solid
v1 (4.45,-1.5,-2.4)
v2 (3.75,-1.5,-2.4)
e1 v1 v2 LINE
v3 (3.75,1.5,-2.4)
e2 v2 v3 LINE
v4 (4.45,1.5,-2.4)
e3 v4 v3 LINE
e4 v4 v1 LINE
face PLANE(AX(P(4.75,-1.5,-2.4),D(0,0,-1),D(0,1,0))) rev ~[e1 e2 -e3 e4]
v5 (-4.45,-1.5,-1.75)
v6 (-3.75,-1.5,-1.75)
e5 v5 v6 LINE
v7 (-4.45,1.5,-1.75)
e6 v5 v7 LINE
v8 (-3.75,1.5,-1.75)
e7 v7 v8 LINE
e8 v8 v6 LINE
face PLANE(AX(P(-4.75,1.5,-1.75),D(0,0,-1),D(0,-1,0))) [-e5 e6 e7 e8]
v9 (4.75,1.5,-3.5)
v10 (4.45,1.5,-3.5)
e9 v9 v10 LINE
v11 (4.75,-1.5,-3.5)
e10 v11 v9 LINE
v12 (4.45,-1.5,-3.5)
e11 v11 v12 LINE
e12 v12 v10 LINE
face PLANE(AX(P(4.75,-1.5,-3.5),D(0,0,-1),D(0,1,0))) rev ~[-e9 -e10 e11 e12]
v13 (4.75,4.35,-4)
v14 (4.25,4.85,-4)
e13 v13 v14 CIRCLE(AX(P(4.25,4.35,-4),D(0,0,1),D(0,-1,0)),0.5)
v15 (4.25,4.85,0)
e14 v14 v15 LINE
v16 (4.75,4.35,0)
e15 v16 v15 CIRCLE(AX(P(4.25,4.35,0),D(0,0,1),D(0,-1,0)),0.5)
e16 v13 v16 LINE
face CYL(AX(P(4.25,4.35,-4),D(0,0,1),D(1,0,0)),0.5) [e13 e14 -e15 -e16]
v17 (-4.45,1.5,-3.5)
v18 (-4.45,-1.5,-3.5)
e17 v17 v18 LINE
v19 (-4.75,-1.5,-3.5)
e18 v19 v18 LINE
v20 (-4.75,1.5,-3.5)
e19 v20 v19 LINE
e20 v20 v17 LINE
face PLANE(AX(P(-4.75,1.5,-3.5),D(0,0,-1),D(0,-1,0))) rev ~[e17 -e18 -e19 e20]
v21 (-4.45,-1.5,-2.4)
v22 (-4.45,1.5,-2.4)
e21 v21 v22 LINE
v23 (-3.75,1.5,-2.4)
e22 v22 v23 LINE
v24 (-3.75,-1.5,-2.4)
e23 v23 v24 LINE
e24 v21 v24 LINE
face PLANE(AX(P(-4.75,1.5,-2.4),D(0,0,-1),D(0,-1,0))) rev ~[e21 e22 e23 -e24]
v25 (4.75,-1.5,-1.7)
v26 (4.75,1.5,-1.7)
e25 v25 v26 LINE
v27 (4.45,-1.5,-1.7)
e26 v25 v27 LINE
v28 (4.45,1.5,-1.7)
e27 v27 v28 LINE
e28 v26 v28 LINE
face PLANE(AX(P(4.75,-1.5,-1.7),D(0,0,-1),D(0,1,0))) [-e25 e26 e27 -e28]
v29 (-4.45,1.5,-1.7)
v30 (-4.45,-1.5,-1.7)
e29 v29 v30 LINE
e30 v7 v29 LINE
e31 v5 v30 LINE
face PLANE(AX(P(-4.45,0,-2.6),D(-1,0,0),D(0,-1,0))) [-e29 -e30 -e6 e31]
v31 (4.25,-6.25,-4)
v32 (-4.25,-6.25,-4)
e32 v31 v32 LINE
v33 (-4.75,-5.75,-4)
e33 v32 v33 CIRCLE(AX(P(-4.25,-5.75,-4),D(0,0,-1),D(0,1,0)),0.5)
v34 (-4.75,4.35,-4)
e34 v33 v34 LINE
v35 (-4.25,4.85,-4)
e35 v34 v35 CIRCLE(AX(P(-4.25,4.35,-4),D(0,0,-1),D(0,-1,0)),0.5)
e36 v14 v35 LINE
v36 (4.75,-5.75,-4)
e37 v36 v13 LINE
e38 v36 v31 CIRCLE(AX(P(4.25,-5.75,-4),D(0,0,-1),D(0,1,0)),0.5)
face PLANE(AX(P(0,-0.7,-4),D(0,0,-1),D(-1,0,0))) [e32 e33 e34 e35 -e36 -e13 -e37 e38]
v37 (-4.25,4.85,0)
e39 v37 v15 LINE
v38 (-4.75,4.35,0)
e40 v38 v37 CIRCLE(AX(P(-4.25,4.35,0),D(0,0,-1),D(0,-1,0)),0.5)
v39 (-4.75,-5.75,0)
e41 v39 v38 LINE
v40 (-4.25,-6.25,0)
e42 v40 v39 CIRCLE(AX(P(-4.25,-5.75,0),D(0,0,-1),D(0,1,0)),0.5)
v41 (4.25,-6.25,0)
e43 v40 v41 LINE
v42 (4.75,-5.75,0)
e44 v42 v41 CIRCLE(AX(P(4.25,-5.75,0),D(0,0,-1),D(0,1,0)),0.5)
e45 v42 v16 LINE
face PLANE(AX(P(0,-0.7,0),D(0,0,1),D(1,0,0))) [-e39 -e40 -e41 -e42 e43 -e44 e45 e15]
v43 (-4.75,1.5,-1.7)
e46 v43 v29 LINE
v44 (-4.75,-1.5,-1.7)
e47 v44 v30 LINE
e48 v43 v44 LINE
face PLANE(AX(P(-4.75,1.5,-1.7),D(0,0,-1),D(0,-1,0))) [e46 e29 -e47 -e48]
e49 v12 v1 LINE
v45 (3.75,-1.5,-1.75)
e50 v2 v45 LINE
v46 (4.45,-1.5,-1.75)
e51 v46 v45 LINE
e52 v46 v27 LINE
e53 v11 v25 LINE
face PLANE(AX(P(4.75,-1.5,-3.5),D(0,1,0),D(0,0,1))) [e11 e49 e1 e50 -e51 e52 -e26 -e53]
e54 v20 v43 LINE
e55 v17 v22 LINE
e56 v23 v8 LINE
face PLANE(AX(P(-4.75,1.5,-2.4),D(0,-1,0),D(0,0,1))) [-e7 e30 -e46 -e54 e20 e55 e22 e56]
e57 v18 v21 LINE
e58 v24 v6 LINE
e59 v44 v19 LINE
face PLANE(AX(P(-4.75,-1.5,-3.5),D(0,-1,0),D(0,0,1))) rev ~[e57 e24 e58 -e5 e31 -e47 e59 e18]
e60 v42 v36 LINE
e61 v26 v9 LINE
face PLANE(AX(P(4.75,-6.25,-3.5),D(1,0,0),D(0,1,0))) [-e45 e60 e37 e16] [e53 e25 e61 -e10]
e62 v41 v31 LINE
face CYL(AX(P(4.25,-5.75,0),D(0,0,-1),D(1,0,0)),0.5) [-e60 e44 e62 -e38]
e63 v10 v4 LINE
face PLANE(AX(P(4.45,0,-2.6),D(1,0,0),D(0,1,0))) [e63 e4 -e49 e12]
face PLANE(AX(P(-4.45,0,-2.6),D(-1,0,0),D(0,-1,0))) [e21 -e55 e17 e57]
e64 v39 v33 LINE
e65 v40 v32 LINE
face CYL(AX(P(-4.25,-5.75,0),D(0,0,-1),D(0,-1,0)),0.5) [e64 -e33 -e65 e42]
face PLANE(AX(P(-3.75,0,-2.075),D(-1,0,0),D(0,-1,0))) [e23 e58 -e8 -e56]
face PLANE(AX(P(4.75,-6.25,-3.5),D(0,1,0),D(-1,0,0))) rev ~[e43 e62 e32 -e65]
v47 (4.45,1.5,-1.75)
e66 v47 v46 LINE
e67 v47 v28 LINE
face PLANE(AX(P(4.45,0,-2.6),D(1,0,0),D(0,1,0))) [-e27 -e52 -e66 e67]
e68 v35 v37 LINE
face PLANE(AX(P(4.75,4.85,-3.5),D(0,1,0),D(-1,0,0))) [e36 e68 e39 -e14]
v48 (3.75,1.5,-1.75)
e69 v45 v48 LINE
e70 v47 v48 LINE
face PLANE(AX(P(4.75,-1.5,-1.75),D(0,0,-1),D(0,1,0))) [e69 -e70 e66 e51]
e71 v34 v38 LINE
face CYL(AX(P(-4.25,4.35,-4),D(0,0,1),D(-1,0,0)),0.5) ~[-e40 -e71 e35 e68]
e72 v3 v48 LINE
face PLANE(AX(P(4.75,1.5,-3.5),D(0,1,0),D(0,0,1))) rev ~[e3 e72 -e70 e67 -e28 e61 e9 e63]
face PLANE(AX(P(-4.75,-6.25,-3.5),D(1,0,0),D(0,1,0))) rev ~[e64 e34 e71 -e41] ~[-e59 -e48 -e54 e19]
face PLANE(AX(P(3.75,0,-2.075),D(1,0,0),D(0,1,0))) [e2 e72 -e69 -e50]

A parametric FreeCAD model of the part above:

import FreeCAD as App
import Part
import Sketcher
from FreeCAD import Vector
Q = App.Units.Quantity


def edges_at(feature, points):
    """Names of the edges that pass closest to the given points."""
    edges = feature.Shape.Edges
    near = lambda p: min(range(len(edges)), key=lambda i: edges[i].distToShape(Part.Vertex(*p))[0])
    return sorted({f"Edge{near(p) + 1}" for p in points})

doc = App.newDocument("Part")
body = doc.addObject("PartDesign::Body", "Body")

# Sketch on XY plane
sketch1 = body.newObject("Sketcher::SketchObject", "Sketch")
sketch1.AttachmentSupport = (doc.getObject("XY_Plane"), [""])
sketch1.MapMode = "FlatFace"
sketch1.addGeometry([
    Part.LineSegment(Vector(-5, 5, 0), Vector(-5, -6, 0)),
    Part.LineSegment(Vector(-5, -6, 0), Vector(5, -6, 0)),
    Part.LineSegment(Vector(5, -6, 0), Vector(5, 5, 0)),
    Part.LineSegment(Vector(5, 5, 0), Vector(-5, 5, 0)),
], False)
sketch1.addConstraint([
    Sketcher.Constraint("Coincident", 0, 2, 1, 1),
    Sketcher.Constraint("Coincident", 1, 2, 2, 1),
    Sketcher.Constraint("Coincident", 2, 2, 3, 1),
    Sketcher.Constraint("Coincident", 3, 2, 0, 1),
    Sketcher.Constraint("Vertical", 0),
    Sketcher.Constraint("Horizontal", 1),
    Sketcher.Constraint("Vertical", 2),
    Sketcher.Constraint("Horizontal", 3),
    Sketcher.Constraint("DistanceX", 1, 1, 1, 2, Q("9.5 mm")),
    Sketcher.Constraint("DistanceY", 0, 2, 0, 1, Q("11.1 mm")),
    Sketcher.Constraint("DistanceX", 0, 2, -1, 1, Q("4.75 mm")),
    Sketcher.Constraint("DistanceY", 0, 2, -1, 1, Q("6.25 mm")),
])
pad1 = body.newObject("PartDesign::Pad", "Pad")
pad1.Profile = sketch1
pad1.Length = 3.5
pad1.Reversed = True

# Sketch on YZ plane
sketch2 = body.newObject("Sketcher::SketchObject", "Sketch001")
sketch2.AttachmentSupport = (doc.getObject("YZ_Plane"), [""])
sketch2.MapMode = "FlatFace"
sketch2.AttachmentOffset = App.Placement(Vector(0, 0, 4.75), App.Rotation())
sketch2.addGeometry([
    Part.LineSegment(Vector(-1.5, -1.8, 0), Vector(-1.5, -2.4, 0)),
    Part.LineSegment(Vector(-1.5, -2.4, 0), Vector(1.5, -2.4, 0)),
    Part.LineSegment(Vector(1.5, -2.4, 0), Vector(1.5, -1.8, 0)),
    Part.LineSegment(Vector(1.5, -1.8, 0), Vector(-1.5, -1.8, 0)),
], False)
sketch2.addConstraint([
    Sketcher.Constraint("Coincident", 0, 2, 1, 1),
    Sketcher.Constraint("Coincident", 1, 2, 2, 1),
    Sketcher.Constraint("Coincident", 2, 2, 3, 1),
    Sketcher.Constraint("Coincident", 3, 2, 0, 1),
    Sketcher.Constraint("Vertical", 0),
    Sketcher.Constraint("Horizontal", 1),
    Sketcher.Constraint("Vertical", 2),
    Sketcher.Constraint("Horizontal", 3),
    Sketcher.Constraint("DistanceX", 1, 1, 1, 2, Q("3 mm")),
    Sketcher.Constraint("DistanceY", 0, 2, 0, 1, Q("0.65 mm")),
    Sketcher.Constraint("DistanceX", 0, 2, -1, 1, Q("1.5 mm")),
    Sketcher.Constraint("DistanceY", 0, 2, -1, 1, Q("2.4 mm")),
])
pocket1 = body.newObject("PartDesign::Pocket", "Pocket")
pocket1.Profile = sketch2
pocket1.Length = 1

# Sketch on XY plane
sketch3 = body.newObject("Sketcher::SketchObject", "Sketch002")
sketch3.AttachmentSupport = (doc.getObject("XY_Plane"), [""])
sketch3.MapMode = "FlatFace"
sketch3.AttachmentOffset = App.Placement(Vector(0, 0, -3.5), App.Rotation())
sketch3.addGeometry([
    Part.LineSegment(Vector(5, 5, 0), Vector(5, -6, 0)),
    Part.LineSegment(Vector(5, -6, 0), Vector(-5, -6, 0)),
    Part.LineSegment(Vector(-5, -6, 0), Vector(-5, 5, 0)),
    Part.LineSegment(Vector(-5, 5, 0), Vector(5, 5, 0)),
], False)
sketch3.addConstraint([
    Sketcher.Constraint("Coincident", 0, 2, 1, 1),
    Sketcher.Constraint("Coincident", 1, 2, 2, 1),
    Sketcher.Constraint("Coincident", 2, 2, 3, 1),
    Sketcher.Constraint("Coincident", 3, 2, 0, 1),
    Sketcher.Constraint("Vertical", 0),
    Sketcher.Constraint("Horizontal", 1),
    Sketcher.Constraint("Vertical", 2),
    Sketcher.Constraint("Horizontal", 3),
    Sketcher.Constraint("DistanceX", 1, 2, 1, 1, Q("9.5 mm")),
    Sketcher.Constraint("DistanceY", 0, 2, 0, 1, Q("11.1 mm")),
    Sketcher.Constraint("DistanceX", -1, 1, 0, 2, Q("4.75 mm")),
    Sketcher.Constraint("DistanceY", 0, 2, -1, 1, Q("6.25 mm")),
])
pad2 = body.newObject("PartDesign::Pad", "Pad001")
pad2.Profile = sketch3
pad2.Length = 0.5
pad2.Reversed = True
doc.recompute()

fillet = body.newObject("PartDesign::Fillet", "Fillet")
fillet.Base = (pad2, edges_at(pad2, [
    (4.75, -6.25, -2),
    (-4.75, -6.25, -2),
    (4.75, 4.85, -2),
    (-4.75, 4.85, -2),
]))
fillet.Radius = 0.5

# Sketch on YZ plane
sketch4 = body.newObject("Sketcher::SketchObject", "Sketch003")
sketch4.AttachmentSupport = (doc.getObject("YZ_Plane"), [""])
sketch4.MapMode = "FlatFace"
sketch4.AttachmentOffset = App.Placement(Vector(0, 0, -4.75), App.Rotation())
sketch4.addGeometry([
    Part.LineSegment(Vector(1.5, -1.8, 0), Vector(1.5, -2.4, 0)),
    Part.LineSegment(Vector(1.5, -2.4, 0), Vector(-1.5, -2.4, 0)),
    Part.LineSegment(Vector(-1.5, -2.4, 0), Vector(-1.5, -1.8, 0)),
    Part.LineSegment(Vector(-1.5, -1.8, 0), Vector(1.5, -1.8, 0)),
], False)
sketch4.addConstraint([
    Sketcher.Constraint("Coincident", 0, 2, 1, 1),
    Sketcher.Constraint("Coincident", 1, 2, 2, 1),
    Sketcher.Constraint("Coincident", 2, 2, 3, 1),
    Sketcher.Constraint("Coincident", 3, 2, 0, 1),
    Sketcher.Constraint("Vertical", 0),
    Sketcher.Constraint("Horizontal", 1),
    Sketcher.Constraint("Vertical", 2),
    Sketcher.Constraint("Horizontal", 3),
    Sketcher.Constraint("DistanceX", 1, 2, 1, 1, Q("3 mm")),
    Sketcher.Constraint("DistanceY", 0, 2, 0, 1, Q("0.65 mm")),
    Sketcher.Constraint("DistanceX", -1, 1, 0, 2, Q("1.5 mm")),
    Sketcher.Constraint("DistanceY", 0, 2, -1, 1, Q("2.4 mm")),
])
pocket2 = body.newObject("PartDesign::Pocket", "Pocket001")
pocket2.Profile = sketch4
pocket2.Length = 1
pocket2.Reversed = True

# Sketch on YZ plane
sketch5 = body.newObject("Sketcher::SketchObject", "Sketch004")
sketch5.AttachmentSupport = (doc.getObject("YZ_Plane"), [""])
sketch5.MapMode = "FlatFace"
sketch5.AttachmentOffset = App.Placement(Vector(0, 0, 4.75), App.Rotation())
sketch5.addGeometry([
    Part.LineSegment(Vector(-1.5, -1.7, 0), Vector(-1.5, -3.5, 0)),
    Part.LineSegment(Vector(-1.5, -3.5, 0), Vector(1.5, -3.5, 0)),
    Part.LineSegment(Vector(1.5, -3.5, 0), Vector(1.5, -1.7, 0)),
    Part.LineSegment(Vector(1.5, -1.7, 0), Vector(-1.5, -1.7, 0)),
], False)
sketch5.addConstraint([
    Sketcher.Constraint("Coincident", 0, 2, 1, 1),
    Sketcher.Constraint("Coincident", 1, 2, 2, 1),
    Sketcher.Constraint("Coincident", 2, 2, 3, 1),
    Sketcher.Constraint("Coincident", 3, 2, 0, 1),
    Sketcher.Constraint("Vertical", 0),
    Sketcher.Constraint("Horizontal", 1),
    Sketcher.Constraint("Vertical", 2),
    Sketcher.Constraint("Horizontal", 3),
    Sketcher.Constraint("DistanceX", 1, 1, 1, 2, Q("3 mm")),
    Sketcher.Constraint("DistanceY", 0, 2, 0, 1, Q("1.8 mm")),
    Sketcher.Constraint("DistanceX", 0, 2, -1, 1, Q("1.5 mm")),
    Sketcher.Constraint("DistanceY", 0, 2, -1, 1, Q("3.5 mm")),
])
pocket3 = body.newObject("PartDesign::Pocket", "Pocket002")
pocket3.Profile = sketch5
pocket3.Length = 0.3

# Sketch on YZ plane
sketch6 = body.newObject("Sketcher::SketchObject", "Sketch005")
sketch6.AttachmentSupport = (doc.getObject("YZ_Plane"), [""])
sketch6.MapMode = "FlatFace"
sketch6.AttachmentOffset = App.Placement(Vector(0, 0, -4.75), App.Rotation())
sketch6.addGeometry([
    Part.LineSegment(Vector(1.5, -1.7, 0), Vector(1.5, -3.5, 0)),
    Part.LineSegment(Vector(1.5, -3.5, 0), Vector(-1.5, -3.5, 0)),
    Part.LineSegment(Vector(-1.5, -3.5, 0), Vector(-1.5, -1.7, 0)),
    Part.LineSegment(Vector(-1.5, -1.7, 0), Vector(1.5, -1.7, 0)),
], False)
sketch6.addConstraint([
    Sketcher.Constraint("Coincident", 0, 2, 1, 1),
    Sketcher.Constraint("Coincident", 1, 2, 2, 1),
    Sketcher.Constraint("Coincident", 2, 2, 3, 1),
    Sketcher.Constraint("Coincident", 3, 2, 0, 1),
    Sketcher.Constraint("Vertical", 0),
    Sketcher.Constraint("Horizontal", 1),
    Sketcher.Constraint("Vertical", 2),
    Sketcher.Constraint("Horizontal", 3),
    Sketcher.Constraint("DistanceX", 1, 2, 1, 1, Q("3 mm")),
    Sketcher.Constraint("DistanceY", 0, 2, 0, 1, Q("1.8 mm")),
    Sketcher.Constraint("DistanceX", -1, 1, 0, 2, Q("1.5 mm")),
    Sketcher.Constraint("DistanceY", 0, 2, -1, 1, Q("3.5 mm")),
])
pocket4 = body.newObject("PartDesign::Pocket", "Pocket003")
pocket4.Profile = sketch6
pocket4.Length = 0.3
pocket4.Reversed = True

doc.recompute()
